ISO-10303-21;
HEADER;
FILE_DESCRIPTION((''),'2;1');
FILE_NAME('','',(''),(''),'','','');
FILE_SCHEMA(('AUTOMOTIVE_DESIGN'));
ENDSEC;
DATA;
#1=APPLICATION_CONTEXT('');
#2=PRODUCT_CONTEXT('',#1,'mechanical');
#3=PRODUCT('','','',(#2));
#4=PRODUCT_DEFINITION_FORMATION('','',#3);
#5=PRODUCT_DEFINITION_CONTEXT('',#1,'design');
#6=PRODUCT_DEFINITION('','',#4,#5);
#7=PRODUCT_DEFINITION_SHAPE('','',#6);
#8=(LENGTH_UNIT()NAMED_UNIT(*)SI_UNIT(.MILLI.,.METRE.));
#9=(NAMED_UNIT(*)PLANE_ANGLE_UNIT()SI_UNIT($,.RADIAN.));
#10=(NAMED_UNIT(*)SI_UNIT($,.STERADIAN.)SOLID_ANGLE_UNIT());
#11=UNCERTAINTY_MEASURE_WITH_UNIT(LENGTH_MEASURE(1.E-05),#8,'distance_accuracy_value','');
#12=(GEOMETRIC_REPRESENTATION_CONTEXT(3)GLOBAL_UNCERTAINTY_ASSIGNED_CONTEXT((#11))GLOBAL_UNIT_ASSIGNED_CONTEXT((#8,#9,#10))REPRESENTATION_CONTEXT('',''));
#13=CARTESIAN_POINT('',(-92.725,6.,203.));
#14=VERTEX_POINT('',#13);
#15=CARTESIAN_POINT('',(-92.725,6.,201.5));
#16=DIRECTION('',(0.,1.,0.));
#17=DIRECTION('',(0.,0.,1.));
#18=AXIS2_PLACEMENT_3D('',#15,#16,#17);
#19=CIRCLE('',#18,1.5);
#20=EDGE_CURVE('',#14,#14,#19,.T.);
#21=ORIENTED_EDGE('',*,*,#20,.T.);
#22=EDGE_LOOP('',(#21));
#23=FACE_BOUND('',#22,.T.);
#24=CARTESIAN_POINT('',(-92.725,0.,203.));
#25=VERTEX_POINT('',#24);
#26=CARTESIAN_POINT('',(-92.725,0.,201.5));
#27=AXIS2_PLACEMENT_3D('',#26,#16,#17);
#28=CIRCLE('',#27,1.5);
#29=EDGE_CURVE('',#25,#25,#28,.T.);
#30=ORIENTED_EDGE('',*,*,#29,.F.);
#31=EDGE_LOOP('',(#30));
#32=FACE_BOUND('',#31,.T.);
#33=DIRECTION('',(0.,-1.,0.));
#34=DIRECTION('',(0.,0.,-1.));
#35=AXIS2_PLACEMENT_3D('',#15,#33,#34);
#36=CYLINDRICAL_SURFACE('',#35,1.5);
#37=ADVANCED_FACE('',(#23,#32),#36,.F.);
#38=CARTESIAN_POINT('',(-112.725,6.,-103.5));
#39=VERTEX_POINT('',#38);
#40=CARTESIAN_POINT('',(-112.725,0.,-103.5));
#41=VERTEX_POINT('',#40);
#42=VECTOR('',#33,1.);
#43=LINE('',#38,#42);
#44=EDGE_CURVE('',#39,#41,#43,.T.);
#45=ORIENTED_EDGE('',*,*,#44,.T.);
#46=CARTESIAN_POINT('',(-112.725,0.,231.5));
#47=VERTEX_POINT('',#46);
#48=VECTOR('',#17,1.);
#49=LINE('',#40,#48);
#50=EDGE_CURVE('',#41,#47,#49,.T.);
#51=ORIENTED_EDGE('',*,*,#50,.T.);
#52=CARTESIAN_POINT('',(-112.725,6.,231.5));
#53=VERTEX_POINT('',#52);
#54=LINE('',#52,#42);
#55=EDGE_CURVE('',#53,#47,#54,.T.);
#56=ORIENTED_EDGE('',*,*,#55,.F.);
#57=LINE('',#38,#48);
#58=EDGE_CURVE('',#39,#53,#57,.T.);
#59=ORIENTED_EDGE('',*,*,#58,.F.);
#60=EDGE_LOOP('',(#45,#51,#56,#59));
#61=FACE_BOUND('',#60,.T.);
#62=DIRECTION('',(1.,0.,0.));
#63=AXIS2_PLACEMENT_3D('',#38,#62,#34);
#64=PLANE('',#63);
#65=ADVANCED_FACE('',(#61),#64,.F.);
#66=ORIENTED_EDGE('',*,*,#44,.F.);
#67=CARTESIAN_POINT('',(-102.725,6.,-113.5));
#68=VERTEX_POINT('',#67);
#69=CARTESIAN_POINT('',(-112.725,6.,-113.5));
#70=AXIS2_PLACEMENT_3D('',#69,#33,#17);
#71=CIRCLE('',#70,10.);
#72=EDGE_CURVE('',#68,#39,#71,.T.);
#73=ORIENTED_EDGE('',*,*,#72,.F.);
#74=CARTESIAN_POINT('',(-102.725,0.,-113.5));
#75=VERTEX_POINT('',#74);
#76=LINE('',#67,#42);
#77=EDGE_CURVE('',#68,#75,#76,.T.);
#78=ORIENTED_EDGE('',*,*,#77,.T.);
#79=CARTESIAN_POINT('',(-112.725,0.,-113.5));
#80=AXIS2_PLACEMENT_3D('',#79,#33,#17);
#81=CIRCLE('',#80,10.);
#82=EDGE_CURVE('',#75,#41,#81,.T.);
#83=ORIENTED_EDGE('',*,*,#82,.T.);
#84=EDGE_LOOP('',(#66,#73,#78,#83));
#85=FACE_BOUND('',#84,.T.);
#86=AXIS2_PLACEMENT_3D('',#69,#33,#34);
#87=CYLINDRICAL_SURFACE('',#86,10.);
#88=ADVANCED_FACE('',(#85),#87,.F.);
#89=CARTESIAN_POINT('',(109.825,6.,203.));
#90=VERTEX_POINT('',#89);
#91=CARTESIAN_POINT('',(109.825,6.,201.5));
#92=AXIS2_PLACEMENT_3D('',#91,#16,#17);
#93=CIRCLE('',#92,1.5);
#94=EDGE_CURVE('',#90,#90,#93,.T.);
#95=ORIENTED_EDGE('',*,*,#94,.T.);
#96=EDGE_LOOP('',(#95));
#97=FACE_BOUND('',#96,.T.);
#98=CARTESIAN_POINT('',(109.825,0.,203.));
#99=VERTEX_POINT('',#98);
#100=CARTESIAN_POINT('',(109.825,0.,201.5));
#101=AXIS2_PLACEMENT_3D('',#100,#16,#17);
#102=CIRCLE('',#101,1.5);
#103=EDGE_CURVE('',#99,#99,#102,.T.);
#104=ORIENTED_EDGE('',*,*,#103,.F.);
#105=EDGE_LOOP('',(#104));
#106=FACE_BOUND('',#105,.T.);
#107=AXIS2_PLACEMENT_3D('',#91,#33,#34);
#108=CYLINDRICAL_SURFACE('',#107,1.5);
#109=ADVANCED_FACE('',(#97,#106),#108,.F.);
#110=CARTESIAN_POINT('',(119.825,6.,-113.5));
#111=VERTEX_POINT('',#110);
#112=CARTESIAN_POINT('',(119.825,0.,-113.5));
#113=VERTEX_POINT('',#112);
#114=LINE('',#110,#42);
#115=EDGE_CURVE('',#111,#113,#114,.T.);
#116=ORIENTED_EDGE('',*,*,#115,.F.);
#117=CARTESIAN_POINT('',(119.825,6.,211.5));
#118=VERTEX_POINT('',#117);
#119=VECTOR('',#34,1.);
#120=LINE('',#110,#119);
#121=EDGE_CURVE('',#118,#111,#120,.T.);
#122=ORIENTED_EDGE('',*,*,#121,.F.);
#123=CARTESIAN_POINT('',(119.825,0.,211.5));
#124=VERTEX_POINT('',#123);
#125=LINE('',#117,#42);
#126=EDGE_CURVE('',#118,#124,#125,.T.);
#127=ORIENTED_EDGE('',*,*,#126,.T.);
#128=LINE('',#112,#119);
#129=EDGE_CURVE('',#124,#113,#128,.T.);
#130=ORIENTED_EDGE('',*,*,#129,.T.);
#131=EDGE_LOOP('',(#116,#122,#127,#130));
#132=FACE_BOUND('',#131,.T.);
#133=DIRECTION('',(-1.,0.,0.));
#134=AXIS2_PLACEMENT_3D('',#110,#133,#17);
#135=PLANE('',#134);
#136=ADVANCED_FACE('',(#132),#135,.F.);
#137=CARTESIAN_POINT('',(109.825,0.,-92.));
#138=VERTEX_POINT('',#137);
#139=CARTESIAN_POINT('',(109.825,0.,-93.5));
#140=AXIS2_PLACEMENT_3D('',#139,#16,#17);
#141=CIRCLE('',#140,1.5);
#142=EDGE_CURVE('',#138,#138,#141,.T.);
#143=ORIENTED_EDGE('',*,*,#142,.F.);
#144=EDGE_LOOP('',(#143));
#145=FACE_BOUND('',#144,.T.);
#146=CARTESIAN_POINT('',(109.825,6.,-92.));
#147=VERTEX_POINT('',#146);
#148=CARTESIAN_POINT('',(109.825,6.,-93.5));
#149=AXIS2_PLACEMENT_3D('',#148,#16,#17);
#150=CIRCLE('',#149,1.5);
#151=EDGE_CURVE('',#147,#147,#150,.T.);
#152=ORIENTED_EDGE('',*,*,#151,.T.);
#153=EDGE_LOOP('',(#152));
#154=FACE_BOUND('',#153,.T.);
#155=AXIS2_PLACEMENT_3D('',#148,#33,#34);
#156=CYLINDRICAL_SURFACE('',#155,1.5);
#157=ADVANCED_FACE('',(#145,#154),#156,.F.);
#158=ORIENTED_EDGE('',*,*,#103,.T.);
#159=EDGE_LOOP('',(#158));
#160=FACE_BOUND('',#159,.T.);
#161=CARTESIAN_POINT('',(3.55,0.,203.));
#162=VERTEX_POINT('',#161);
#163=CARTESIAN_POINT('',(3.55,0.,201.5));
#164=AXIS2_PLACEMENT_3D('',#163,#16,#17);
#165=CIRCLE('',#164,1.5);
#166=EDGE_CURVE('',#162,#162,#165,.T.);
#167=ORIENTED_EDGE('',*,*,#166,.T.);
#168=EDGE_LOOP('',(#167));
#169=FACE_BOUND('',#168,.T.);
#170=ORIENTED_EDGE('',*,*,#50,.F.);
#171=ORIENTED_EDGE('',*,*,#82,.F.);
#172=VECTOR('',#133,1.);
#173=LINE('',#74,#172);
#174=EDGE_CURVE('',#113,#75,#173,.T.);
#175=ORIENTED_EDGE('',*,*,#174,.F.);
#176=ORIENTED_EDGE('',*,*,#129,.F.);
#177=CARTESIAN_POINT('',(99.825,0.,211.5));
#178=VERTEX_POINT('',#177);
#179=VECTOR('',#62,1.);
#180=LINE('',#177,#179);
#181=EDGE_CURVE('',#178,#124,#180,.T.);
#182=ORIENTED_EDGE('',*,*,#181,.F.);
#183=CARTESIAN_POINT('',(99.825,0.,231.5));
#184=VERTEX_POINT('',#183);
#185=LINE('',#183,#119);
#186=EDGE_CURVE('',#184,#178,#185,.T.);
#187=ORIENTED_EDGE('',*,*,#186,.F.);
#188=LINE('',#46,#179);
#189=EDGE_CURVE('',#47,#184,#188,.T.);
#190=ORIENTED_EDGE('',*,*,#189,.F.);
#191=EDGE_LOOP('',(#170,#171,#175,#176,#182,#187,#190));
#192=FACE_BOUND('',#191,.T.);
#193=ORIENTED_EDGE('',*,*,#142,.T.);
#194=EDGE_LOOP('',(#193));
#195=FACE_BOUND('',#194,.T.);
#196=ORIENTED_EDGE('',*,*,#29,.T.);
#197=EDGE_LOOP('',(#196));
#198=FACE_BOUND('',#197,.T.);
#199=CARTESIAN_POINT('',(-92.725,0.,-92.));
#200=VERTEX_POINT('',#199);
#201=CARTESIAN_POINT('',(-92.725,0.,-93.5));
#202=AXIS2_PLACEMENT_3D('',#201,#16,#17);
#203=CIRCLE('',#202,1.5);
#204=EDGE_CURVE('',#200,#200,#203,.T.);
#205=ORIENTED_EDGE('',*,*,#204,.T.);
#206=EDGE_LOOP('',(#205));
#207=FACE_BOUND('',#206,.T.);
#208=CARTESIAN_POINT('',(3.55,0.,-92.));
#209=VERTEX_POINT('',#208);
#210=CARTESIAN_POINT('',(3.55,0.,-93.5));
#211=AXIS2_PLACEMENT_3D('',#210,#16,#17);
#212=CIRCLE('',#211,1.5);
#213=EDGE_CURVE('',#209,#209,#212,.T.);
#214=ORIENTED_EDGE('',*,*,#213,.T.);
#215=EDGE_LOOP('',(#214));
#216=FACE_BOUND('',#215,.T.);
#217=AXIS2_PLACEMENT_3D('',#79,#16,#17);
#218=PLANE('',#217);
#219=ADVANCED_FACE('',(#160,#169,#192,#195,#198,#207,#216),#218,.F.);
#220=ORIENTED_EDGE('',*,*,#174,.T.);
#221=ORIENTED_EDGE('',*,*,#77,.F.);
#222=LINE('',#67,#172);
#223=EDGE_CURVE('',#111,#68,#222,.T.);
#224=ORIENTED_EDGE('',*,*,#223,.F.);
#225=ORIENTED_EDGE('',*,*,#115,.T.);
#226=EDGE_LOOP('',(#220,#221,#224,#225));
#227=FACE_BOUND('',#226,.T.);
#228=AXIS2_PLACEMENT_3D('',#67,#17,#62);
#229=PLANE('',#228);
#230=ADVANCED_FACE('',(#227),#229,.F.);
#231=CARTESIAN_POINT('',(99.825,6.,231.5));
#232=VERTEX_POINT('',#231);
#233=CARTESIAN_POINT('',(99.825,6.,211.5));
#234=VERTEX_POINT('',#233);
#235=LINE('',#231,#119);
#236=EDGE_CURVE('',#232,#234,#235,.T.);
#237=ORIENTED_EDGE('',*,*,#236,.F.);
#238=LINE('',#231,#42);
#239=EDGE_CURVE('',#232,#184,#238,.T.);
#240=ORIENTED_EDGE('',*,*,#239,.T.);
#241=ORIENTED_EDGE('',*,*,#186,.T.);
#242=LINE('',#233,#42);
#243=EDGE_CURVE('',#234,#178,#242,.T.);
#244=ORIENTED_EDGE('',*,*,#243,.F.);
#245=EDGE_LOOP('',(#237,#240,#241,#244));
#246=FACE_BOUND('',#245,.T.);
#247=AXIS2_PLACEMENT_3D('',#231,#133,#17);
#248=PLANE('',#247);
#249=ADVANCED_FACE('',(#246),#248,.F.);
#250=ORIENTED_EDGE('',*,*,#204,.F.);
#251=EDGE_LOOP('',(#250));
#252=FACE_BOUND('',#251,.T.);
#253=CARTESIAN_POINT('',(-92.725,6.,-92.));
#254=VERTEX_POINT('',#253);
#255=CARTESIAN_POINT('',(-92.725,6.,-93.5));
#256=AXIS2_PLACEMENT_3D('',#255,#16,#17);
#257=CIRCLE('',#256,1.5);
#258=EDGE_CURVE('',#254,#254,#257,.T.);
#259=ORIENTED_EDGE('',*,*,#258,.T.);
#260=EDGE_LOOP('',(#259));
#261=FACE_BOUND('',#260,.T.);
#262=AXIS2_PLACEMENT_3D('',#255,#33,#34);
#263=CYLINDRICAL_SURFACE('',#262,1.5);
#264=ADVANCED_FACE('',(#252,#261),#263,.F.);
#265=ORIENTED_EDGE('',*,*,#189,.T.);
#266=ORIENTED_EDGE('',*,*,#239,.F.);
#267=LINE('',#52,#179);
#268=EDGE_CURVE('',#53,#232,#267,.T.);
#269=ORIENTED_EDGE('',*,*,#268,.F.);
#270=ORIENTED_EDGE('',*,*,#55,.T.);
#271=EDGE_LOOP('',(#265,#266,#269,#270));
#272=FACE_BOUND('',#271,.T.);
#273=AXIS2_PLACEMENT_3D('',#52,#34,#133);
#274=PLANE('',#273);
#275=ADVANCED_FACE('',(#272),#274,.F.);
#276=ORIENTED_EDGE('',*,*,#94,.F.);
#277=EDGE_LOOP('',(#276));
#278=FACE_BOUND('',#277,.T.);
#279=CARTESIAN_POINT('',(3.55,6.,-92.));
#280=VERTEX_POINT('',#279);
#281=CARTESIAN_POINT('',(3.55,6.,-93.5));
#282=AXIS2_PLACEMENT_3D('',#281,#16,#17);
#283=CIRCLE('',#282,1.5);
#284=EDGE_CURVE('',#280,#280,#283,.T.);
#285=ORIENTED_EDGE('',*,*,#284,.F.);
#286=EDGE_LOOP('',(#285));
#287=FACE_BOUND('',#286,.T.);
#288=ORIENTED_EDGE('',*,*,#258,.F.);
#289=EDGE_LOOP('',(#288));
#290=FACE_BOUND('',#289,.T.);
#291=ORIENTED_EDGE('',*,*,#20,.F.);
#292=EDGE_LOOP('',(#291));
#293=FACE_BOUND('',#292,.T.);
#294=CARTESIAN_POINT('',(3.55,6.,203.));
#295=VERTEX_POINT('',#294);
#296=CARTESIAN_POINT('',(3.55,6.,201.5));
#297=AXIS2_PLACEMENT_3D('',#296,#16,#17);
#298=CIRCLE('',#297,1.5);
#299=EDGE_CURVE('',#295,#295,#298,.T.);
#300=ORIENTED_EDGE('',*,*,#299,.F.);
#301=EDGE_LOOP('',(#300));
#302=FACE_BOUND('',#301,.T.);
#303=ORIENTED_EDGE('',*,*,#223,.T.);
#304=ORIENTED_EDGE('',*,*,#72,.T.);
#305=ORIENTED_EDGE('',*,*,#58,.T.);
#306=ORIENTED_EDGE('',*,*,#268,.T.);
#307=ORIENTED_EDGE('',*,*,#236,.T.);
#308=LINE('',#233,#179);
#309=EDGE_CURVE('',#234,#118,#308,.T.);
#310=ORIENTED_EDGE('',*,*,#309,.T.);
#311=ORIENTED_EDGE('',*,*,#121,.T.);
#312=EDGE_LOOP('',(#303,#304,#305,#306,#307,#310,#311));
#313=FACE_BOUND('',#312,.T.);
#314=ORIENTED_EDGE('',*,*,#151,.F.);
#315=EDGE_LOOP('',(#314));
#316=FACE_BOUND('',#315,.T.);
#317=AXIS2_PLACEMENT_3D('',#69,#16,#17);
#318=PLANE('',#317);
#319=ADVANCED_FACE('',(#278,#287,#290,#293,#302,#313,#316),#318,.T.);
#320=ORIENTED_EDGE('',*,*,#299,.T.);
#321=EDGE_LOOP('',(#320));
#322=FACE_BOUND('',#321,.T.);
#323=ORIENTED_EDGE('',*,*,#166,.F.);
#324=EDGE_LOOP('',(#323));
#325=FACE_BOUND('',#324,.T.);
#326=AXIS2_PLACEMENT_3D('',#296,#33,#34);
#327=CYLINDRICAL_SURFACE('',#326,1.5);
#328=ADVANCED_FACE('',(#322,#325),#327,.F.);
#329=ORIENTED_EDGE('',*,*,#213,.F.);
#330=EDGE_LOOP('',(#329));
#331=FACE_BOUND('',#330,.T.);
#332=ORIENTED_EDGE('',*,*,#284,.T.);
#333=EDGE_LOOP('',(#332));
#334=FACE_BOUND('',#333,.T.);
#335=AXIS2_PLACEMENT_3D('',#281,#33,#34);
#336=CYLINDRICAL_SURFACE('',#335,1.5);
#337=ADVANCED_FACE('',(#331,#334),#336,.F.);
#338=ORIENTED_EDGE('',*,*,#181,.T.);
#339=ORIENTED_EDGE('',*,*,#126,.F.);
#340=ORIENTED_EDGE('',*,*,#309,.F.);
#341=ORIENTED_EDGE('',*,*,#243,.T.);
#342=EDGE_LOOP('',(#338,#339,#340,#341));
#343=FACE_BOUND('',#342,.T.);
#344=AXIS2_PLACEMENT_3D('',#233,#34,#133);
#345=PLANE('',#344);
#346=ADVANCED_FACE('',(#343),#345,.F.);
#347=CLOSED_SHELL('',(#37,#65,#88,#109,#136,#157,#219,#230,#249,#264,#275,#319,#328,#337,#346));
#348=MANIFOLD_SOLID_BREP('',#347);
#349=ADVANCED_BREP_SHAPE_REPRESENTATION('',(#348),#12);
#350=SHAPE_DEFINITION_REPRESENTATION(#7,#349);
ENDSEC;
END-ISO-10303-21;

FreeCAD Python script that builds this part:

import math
import FreeCAD as App
import Part
import Sketcher
from FreeCAD import Vector

doc = App.newDocument("Part")
params = doc.addObject("Spreadsheet::Sheet", "Params")
for row, (alias, value) in enumerate([
    ("sketch1_diameter", "3 mm"),
    ("sketch1_radius", "10 mm"),
    ("sketch1_width", "20 mm"),
    ("sketch1_height", "335 mm"),
    ("sketch1_width2", "222.55 mm"),
    ("pad1_length", "6 mm"),
], start=1):
    params.set(f"A{row}", alias)
    params.set(f"B{row}", "=" + value)
    params.setAlias(f"B{row}", alias)

body = doc.addObject("PartDesign::Body", "Body")

sketch1 = body.newObject("Sketcher::SketchObject", "Sketch")
sketch1.AttachmentSupport = (doc.getObject("XZ_Plane"), [""])
sketch1.MapMode = "FlatFace"
sketch1.addGeometry(Part.LineSegment(Vector(119.8, -113.5, 0), Vector(-102.7, -113.5, 0)), False)
sketch1.addGeometry(Part.ArcOfCircle(Part.Circle(Vector(-112.7, -113.5, 0), Vector(0, 0, 1), 10), math.radians(0), math.radians(90)), False)
sketch1.addGeometry(Part.LineSegment(Vector(-112.7, -103.5, 0), Vector(-112.7, 231.5, 0)), False)
sketch1.addGeometry(Part.LineSegment(Vector(-112.7, 231.5, 0), Vector(99.8, 231.5, 0)), False)
sketch1.addGeometry(Part.LineSegment(Vector(99.8, 231.5, 0), Vector(99.8, 211.5, 0)), False)
sketch1.addGeometry(Part.LineSegment(Vector(99.8, 211.5, 0), Vector(119.8, 211.5, 0)), False)
sketch1.addGeometry(Part.LineSegment(Vector(119.8, 211.5, 0), Vector(119.8, -113.5, 0)), False)
sketch1.addGeometry(Part.Circle(Vector(109.8, 201.5, 0), Vector(0, 0, 1), 1.5), False)
sketch1.addGeometry(Part.Circle(Vector(3.5, 201.5, 0), Vector(0, 0, 1), 1.5), False)
sketch1.addGeometry(Part.Circle(Vector(-92.7, 201.5, 0), Vector(0, 0, 1), 1.5), False)
sketch1.addGeometry(Part.Circle(Vector(109.8, -93.5, 0), Vector(0, 0, 1), 1.5), False)
sketch1.addGeometry(Part.Circle(Vector(3.5, -93.5, 0), Vector(0, 0, 1), 1.5), False)
sketch1.addGeometry(Part.Circle(Vector(-92.7, -93.5, 0), Vector(0, 0, 1), 1.5), False)
sketch1.addConstraint(Sketcher.Constraint("Coincident", 0, 2, 1, 1))
sketch1.addConstraint(Sketcher.Constraint("Coincident", 1, 2, 2, 1))
sketch1.addConstraint(Sketcher.Constraint("Coincident", 2, 2, 3, 1))
sketch1.addConstraint(Sketcher.Constraint("Coincident", 3, 2, 4, 1))
sketch1.addConstraint(Sketcher.Constraint("Coincident", 4, 2, 5, 1))
sketch1.addConstraint(Sketcher.Constraint("Coincident", 5, 2, 6, 1))
sketch1.addConstraint(Sketcher.Constraint("Coincident", 6, 2, 0, 1))
sketch1.addConstraint(Sketcher.Constraint("Horizontal", 0))
sketch1.addConstraint(Sketcher.Constraint("Vertical", 2))
sketch1.addConstraint(Sketcher.Constraint("Horizontal", 3))
sketch1.addConstraint(Sketcher.Constraint("Vertical", 4))
sketch1.addConstraint(Sketcher.Constraint("Horizontal", 5))
sketch1.addConstraint(Sketcher.Constraint("Vertical", 6))
sketch1.addConstraint(Sketcher.Constraint("Equal", 7, 8))
sketch1.addConstraint(Sketcher.Constraint("Equal", 8, 9))
sketch1.addConstraint(Sketcher.Constraint("Equal", 9, 10))
sketch1.addConstraint(Sketcher.Constraint("Equal", 10, 11))
sketch1.addConstraint(Sketcher.Constraint("Equal", 11, 12))
sketch1.addConstraint(Sketcher.Constraint("Horizontal", 7, 3, 8, 3))
sketch1.addConstraint(Sketcher.Constraint("Horizontal", 8, 3, 9, 3))
sketch1.addConstraint(Sketcher.Constraint("Horizontal", 10, 3, 11, 3))
sketch1.addConstraint(Sketcher.Constraint("Horizontal", 11, 3, 12, 3))
sketch1.addConstraint(Sketcher.Constraint("Horizontal", 1, 3, 0, 2))
sketch1.addConstraint(Sketcher.Constraint("Vertical", 7, 3, 10, 3))
sketch1.addConstraint(Sketcher.Constraint("Vertical", 8, 3, 11, 3))
sketch1.addConstraint(Sketcher.Constraint("Vertical", 9, 3, 12, 3))
sketch1.addConstraint(Sketcher.Constraint("Equal", 5, 4))
sketch1.addConstraint(Sketcher.Constraint("Diameter", 7, 3.0))
sketch1.addConstraint(Sketcher.Constraint("Radius", 1, 10.0))
sketch1.addConstraint(Sketcher.Constraint("DistanceX", 5, 1, 5, 2, 20.0))
sketch1.addConstraint(Sketcher.Constraint("DistanceY", 2, 1, 2, 2, 335.0))
sketch1.addConstraint(Sketcher.Constraint("DistanceY", 1, 3, 7, 3, 315.0))
sketch1.addConstraint(Sketcher.Constraint("DistanceX", 1, 3, 9, 3, 20.0))
sketch1.addConstraint(Sketcher.Constraint("DistanceY", 1, 3, 10, 3, 20.0))
sketch1.addConstraint(Sketcher.Constraint("DistanceX", 1, 2, 0, 2, 10.0))
sketch1.addConstraint(Sketcher.Constraint("DistanceX", 3, 2, 7, 3, 10.0))
sketch1.addConstraint(Sketcher.Constraint("DistanceX", 0, 2, 0, 1, 222.55))
sketch1.addConstraint(Sketcher.Constraint("DistanceY", 1, 3, -1, 1, 113.5))
sketch1.addConstraint(Sketcher.Constraint("DistanceX", -1, 1, 8, 3, 3.55))
sketch1.addConstraint(Sketcher.Constraint("DistanceX", 1, 3, -1, 1, 112.725))
sketch1.setExpression("Constraints[27]", "Params.sketch1_diameter")
sketch1.setExpression("Constraints[28]", "Params.sketch1_radius")
sketch1.setExpression("Constraints[29]", "Params.sketch1_width")
sketch1.setExpression("Constraints[30]", "Params.sketch1_height")
sketch1.setExpression("Constraints[36]", "Params.sketch1_width2")
pad1 = body.newObject("PartDesign::Pad", "Pad")
pad1.Profile = sketch1
pad1.setExpression("Length", "Params.pad1_length")
pad1.Reversed = True

doc.recompute()
